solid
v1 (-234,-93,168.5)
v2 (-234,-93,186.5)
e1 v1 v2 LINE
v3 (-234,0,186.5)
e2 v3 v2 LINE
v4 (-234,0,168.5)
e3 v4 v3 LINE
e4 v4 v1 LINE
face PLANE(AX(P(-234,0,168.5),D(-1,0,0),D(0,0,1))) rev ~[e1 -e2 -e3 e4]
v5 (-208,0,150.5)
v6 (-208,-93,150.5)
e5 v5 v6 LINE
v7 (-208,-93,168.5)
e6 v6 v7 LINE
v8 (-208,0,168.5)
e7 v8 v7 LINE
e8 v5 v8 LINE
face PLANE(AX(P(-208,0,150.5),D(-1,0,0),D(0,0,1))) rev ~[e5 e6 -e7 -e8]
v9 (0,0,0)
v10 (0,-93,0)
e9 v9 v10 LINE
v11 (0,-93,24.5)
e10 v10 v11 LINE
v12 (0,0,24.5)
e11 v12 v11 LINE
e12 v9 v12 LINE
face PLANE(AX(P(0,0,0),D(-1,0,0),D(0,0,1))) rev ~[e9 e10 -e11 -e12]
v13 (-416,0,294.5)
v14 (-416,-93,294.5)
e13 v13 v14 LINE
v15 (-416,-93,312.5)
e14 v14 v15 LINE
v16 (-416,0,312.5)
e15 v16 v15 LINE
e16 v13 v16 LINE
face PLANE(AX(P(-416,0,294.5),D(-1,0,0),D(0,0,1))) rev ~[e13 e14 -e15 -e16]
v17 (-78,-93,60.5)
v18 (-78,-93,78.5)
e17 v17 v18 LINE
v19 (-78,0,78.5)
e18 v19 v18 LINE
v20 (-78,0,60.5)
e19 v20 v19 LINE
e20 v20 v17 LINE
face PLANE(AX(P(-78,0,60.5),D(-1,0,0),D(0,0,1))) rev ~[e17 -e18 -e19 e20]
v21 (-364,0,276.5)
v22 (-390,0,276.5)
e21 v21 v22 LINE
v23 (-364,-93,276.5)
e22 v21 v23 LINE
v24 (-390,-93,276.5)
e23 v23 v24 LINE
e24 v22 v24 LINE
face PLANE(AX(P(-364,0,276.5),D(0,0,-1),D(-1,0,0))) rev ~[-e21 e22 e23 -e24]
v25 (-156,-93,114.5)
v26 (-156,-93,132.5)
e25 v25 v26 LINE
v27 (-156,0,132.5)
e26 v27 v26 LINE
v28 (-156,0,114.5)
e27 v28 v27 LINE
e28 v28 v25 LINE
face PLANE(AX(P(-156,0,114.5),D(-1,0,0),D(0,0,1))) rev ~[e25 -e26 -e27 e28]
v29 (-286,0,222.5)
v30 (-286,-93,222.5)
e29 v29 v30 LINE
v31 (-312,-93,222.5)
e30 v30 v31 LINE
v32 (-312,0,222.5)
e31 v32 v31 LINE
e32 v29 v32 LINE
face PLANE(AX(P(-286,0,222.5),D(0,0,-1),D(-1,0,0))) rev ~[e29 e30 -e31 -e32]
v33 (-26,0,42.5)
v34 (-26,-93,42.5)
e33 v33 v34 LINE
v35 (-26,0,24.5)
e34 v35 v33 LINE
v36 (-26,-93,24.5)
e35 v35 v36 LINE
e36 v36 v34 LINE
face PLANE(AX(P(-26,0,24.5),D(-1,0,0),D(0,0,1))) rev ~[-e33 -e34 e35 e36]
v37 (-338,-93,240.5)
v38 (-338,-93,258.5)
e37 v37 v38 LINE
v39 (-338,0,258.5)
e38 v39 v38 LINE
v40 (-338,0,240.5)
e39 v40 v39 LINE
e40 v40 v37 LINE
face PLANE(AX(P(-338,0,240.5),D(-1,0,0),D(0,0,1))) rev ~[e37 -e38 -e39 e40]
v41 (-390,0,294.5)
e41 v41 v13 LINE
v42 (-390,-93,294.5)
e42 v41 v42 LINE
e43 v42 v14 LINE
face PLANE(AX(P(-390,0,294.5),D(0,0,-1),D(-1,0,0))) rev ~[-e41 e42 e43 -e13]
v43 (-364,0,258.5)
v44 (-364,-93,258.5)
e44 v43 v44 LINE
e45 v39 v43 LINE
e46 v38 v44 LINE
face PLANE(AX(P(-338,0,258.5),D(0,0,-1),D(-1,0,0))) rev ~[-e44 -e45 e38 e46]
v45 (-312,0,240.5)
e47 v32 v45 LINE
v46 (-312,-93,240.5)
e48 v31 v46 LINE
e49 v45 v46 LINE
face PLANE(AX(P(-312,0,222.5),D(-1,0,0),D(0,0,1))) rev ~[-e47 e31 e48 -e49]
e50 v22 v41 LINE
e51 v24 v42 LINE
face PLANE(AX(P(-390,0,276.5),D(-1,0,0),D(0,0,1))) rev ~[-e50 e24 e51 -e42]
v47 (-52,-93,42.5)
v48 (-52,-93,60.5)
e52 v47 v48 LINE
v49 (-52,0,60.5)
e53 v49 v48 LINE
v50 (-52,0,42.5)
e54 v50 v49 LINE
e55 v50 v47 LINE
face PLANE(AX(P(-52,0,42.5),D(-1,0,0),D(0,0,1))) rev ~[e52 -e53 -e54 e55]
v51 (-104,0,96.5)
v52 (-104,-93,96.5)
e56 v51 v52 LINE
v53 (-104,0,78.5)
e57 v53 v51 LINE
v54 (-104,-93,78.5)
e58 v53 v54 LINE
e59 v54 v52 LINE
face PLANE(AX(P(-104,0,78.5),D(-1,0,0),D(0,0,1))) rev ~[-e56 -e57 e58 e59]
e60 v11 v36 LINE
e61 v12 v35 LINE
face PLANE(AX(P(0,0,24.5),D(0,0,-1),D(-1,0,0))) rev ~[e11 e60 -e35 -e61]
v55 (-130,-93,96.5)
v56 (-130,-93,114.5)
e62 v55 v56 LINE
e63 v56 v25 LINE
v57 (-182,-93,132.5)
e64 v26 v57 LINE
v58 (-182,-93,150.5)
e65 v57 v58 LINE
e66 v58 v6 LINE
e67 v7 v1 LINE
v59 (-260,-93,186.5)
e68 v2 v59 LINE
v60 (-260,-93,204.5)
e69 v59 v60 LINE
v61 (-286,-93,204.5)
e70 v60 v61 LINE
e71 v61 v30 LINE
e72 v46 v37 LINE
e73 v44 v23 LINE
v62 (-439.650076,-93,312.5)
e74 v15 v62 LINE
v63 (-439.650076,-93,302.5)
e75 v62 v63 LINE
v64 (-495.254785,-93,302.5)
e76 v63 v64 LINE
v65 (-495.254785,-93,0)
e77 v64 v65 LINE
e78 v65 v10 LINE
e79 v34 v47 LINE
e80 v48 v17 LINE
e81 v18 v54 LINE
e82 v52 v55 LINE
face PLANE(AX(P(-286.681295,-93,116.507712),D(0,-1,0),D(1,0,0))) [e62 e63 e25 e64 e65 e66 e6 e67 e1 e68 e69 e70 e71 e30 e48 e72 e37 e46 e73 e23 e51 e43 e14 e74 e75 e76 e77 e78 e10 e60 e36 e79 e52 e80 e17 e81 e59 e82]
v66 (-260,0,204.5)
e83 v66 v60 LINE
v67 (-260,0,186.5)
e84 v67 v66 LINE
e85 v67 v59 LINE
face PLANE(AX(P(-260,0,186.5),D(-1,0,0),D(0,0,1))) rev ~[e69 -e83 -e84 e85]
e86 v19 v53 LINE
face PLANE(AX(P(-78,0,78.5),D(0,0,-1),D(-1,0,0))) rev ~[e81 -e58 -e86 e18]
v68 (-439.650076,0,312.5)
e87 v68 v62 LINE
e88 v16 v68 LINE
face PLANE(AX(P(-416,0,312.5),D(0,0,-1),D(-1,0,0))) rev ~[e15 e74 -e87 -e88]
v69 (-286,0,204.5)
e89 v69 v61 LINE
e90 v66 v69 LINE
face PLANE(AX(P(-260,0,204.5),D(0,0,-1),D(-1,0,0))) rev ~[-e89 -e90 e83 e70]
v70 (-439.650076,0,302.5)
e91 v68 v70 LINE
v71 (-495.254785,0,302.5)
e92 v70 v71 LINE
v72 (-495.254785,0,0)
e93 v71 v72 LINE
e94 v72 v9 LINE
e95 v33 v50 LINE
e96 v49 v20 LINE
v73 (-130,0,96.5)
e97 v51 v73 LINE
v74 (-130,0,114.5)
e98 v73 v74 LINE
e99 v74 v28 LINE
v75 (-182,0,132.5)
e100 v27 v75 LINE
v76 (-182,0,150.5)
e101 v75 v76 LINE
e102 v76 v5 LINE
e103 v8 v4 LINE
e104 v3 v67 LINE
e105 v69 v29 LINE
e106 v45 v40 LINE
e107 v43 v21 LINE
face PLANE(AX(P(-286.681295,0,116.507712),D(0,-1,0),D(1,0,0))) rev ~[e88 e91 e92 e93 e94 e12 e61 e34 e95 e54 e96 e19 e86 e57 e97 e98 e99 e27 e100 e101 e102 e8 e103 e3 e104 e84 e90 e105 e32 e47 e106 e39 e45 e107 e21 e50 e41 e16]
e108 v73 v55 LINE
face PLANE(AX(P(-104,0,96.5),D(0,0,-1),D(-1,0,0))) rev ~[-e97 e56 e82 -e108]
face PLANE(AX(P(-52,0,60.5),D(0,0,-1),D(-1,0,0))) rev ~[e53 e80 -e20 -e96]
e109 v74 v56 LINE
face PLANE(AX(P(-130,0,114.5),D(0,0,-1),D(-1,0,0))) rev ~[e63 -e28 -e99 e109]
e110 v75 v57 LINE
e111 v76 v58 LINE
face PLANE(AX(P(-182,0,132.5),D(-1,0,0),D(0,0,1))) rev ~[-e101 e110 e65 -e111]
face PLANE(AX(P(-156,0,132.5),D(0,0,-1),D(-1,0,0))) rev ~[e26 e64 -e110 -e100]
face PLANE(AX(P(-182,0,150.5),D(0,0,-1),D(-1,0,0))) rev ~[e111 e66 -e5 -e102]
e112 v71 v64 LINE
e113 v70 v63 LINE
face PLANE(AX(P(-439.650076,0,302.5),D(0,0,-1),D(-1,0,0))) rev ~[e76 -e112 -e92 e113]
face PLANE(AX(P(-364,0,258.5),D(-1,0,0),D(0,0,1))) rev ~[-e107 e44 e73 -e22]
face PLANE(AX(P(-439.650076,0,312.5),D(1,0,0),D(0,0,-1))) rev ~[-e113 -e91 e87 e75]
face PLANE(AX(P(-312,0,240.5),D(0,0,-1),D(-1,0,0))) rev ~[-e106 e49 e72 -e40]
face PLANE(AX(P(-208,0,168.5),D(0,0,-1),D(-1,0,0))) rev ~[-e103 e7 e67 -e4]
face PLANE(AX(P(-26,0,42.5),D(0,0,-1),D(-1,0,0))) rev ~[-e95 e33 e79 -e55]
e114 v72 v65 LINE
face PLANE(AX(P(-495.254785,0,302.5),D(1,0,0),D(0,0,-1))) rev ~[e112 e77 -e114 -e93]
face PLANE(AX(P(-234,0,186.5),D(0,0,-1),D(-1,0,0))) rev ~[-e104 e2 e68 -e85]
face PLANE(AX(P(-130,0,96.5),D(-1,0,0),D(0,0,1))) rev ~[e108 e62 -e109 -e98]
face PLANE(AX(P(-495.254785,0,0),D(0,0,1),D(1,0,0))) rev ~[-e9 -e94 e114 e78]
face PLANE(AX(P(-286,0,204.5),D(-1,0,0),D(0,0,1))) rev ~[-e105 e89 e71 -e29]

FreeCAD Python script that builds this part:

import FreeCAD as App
import Part
import Sketcher
Q = App.Units.Quantity


def add_polygon(sketch, points):
    """Adds a closed chain of lines whose ends are joined by coincident constraints."""
    first, n = sketch.GeometryCount, len(points)
    for a, b in zip(points, points[1:] + points[:1]):
        sketch.addGeometry(Part.LineSegment(App.Vector(*a, 0), App.Vector(*b, 0)), False)
    for i in range(n):
        sketch.addConstraint(Sketcher.Constraint("Coincident", first + i, 2, first + (i + 1) % n, 1))

doc = App.newDocument("Part")
body = doc.addObject("PartDesign::Body", "Body")

# Sketch on XZ plane
sketch1 = doc.addObject("Sketcher::SketchObject", "Sketch")
body.addObject(sketch1)
sketch1.AttachmentSupport = (doc.XZ_Plane, [""])
sketch1.MapMode = "FlatFace"
add_polygon(sketch1, [(-495, 0), (0, 0), (0, 24), (-26, 24), (-26, 42), (-52, 42), (-52, 60), (-78, 60), (-78, 78), (-104, 78), (-104, 96), (-130, 96), (-130, 114), (-156, 114), (-156, 132), (-182, 132), (-182, 150), (-208, 150), (-208, 168), (-234, 168), (-234, 186), (-260, 186), (-260, 204), (-286, 204), (-286, 222), (-312, 222), (-312, 240), (-338, 240), (-338, 258), (-364, 258), (-364, 276), (-390, 276), (-390, 294), (-416, 294), (-416, 312), (-440, 312), (-440, 302), (-495, 302)])  # lines 0-37
sketch1.addConstraint([
    Sketcher.Constraint("Horizontal", 0),
    Sketcher.Constraint("Vertical", 1),
    Sketcher.Constraint("Horizontal", 2),
    Sketcher.Constraint("Vertical", 3),
    Sketcher.Constraint("Horizontal", 4),
    Sketcher.Constraint("Vertical", 5),
    Sketcher.Constraint("Horizontal", 6),
    Sketcher.Constraint("Vertical", 7),
    Sketcher.Constraint("Horizontal", 8),
    Sketcher.Constraint("Vertical", 9),
    Sketcher.Constraint("Horizontal", 10),
    Sketcher.Constraint("Vertical", 11),
    Sketcher.Constraint("Horizontal", 12),
    Sketcher.Constraint("Vertical", 13),
    Sketcher.Constraint("Horizontal", 14),
    Sketcher.Constraint("Vertical", 15),
    Sketcher.Constraint("Horizontal", 16),
    Sketcher.Constraint("Vertical", 17),
    Sketcher.Constraint("Horizontal", 18),
    Sketcher.Constraint("Vertical", 19),
    Sketcher.Constraint("Horizontal", 20),
    Sketcher.Constraint("Vertical", 21),
    Sketcher.Constraint("Horizontal", 22),
    Sketcher.Constraint("Vertical", 23),
    Sketcher.Constraint("Horizontal", 24),
    Sketcher.Constraint("Vertical", 25),
    Sketcher.Constraint("Horizontal", 26),
    Sketcher.Constraint("Vertical", 27),
    Sketcher.Constraint("Horizontal", 28),
    Sketcher.Constraint("Vertical", 29),
    Sketcher.Constraint("Horizontal", 30),
    Sketcher.Constraint("Vertical", 31),
    Sketcher.Constraint("Horizontal", 32),
    Sketcher.Constraint("Vertical", 33),
    Sketcher.Constraint("Horizontal", 34),
    Sketcher.Constraint("Vertical", 35),
    Sketcher.Constraint("Horizontal", 36),
    Sketcher.Constraint("Vertical", 37),
    Sketcher.Constraint("Coincident", 0, 2, -1, 1),
    Sketcher.Constraint("Equal", 2, 4),
    Sketcher.Constraint("Equal", 4, 6),
    Sketcher.Constraint("Equal", 6, 8),
    Sketcher.Constraint("Equal", 8, 10),
    Sketcher.Constraint("Equal", 10, 12),
    Sketcher.Constraint("Equal", 12, 14),
    Sketcher.Constraint("Equal", 14, 16),
    Sketcher.Constraint("Equal", 16, 18),
    Sketcher.Constraint("Equal", 18, 20),
    Sketcher.Constraint("Equal", 20, 22),
    Sketcher.Constraint("Equal", 22, 24),
    Sketcher.Constraint("Equal", 24, 26),
    Sketcher.Constraint("Equal", 26, 28),
    Sketcher.Constraint("Equal", 28, 30),
    Sketcher.Constraint("Equal", 30, 32),
    Sketcher.Constraint("Equal", 3, 5),
    Sketcher.Constraint("Equal", 5, 7),
    Sketcher.Constraint("Equal", 7, 9),
    Sketcher.Constraint("Equal", 9, 11),
    Sketcher.Constraint("Equal", 11, 13),
    Sketcher.Constraint("Equal", 13, 15),
    Sketcher.Constraint("Equal", 15, 17),
    Sketcher.Constraint("Equal", 17, 19),
    Sketcher.Constraint("Equal", 19, 21),
    Sketcher.Constraint("Equal", 21, 23),
    Sketcher.Constraint("Equal", 23, 25),
    Sketcher.Constraint("Equal", 25, 27),
    Sketcher.Constraint("Equal", 27, 29),
    Sketcher.Constraint("Equal", 29, 31),
    Sketcher.Constraint("Equal", 31, 33),
    Sketcher.Constraint("DistanceX", 2, 2, 2, 1, Q("26 mm")),
    Sketcher.Constraint("DistanceY", 3, 1, 3, 2, Q("18 mm")),
    Sketcher.Constraint("DistanceY", 35, 2, 35, 1, Q("10 mm")),
    Sketcher.Constraint("DistanceY", 1, 1, 1, 2, Q("24.5 mm")),
    Sketcher.Constraint("DistanceX", 36, 2, 36, 1, Q("55.604709 mm")),
    Sketcher.Constraint("DistanceX", 0, 1, 0, 2, Q("495.254785 mm")),
])
pad1 = doc.addObject("PartDesign::Pad", "Pad")
body.addObject(pad1)
pad1.Profile = sketch1
pad1.Length = 93

doc.recompute()
